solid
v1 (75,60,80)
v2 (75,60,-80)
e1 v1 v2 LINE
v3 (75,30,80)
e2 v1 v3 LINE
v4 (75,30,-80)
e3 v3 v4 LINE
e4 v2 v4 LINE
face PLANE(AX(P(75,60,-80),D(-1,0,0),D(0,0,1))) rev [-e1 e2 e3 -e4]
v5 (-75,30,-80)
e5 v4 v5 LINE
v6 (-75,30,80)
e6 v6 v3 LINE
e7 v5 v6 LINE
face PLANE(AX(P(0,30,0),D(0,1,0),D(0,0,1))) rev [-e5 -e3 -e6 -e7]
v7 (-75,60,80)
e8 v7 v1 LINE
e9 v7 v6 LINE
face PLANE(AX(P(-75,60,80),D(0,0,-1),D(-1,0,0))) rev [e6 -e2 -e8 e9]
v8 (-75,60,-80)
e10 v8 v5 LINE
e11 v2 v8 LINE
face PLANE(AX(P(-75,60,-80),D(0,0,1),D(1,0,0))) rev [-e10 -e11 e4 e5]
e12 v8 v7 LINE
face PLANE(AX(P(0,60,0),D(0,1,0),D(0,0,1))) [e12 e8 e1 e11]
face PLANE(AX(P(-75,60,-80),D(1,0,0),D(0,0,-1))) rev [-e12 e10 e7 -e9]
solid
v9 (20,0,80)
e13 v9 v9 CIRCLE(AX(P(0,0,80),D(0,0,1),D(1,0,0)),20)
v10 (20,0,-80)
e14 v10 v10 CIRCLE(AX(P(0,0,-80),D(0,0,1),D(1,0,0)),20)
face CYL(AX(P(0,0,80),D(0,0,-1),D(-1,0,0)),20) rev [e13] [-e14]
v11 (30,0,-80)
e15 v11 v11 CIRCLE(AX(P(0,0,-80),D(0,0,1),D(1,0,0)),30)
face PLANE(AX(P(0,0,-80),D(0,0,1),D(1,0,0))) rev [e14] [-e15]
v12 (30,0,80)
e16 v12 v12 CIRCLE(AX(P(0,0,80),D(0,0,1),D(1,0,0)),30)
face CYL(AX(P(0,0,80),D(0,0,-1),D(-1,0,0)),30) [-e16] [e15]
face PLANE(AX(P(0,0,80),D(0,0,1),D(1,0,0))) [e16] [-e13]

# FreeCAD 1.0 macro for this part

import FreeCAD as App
import Part
import Sketcher
Q = App.Units.Quantity

doc = App.newDocument("Part")
body = doc.addObject("PartDesign::Body", "Body")

# Sketch on XY plane
sketch1 = body.newObject("Sketcher::SketchObject", "Sketch")
sketch1.AttachmentSupport = (doc.getObject("XY_Plane"), [""])
sketch1.MapMode = "FlatFace"
sketch1.addGeometry([
    Part.Circle(App.Vector(0, 0, 0), App.Vector(0, 0, 1), 30),
    Part.Circle(App.Vector(0, 0, 0), App.Vector(0, 0, 1), 20),
], False)
sketch1.addConstraint([
    Sketcher.Constraint("Coincident", 0, 3, -1, 1),
    Sketcher.Constraint("Coincident", 1, 3, -1, 1),
    Sketcher.Constraint("Diameter", 0, Q("60 mm")),
    Sketcher.Constraint("Diameter", 1, Q("40 mm")),
])
pad1 = body.newObject("PartDesign::Pad", "Pad")
pad1.Profile = sketch1
pad1.Length = 160
pad1.Midplane = True
body2 = doc.addObject("PartDesign::Body", "Body001")

# Sketch on XZ plane
sketch2 = body2.newObject("Sketcher::SketchObject", "Sketch001")
sketch2.AttachmentSupport = (doc.getObject("XZ_Plane001"), [""])
sketch2.MapMode = "FlatFace"
sketch2.AttachmentOffset = App.Placement(App.Vector(0, 0, -30), App.Rotation())
sketch2.addGeometry([
    Part.LineSegment(App.Vector(-75, -80, 0), App.Vector(-75, 80, 0)),
    Part.LineSegment(App.Vector(-75, 80, 0), App.Vector(75, 80, 0)),
    Part.LineSegment(App.Vector(75, 80, 0), App.Vector(75, -80, 0)),
    Part.LineSegment(App.Vector(75, -80, 0), App.Vector(-75, -80, 0)),
], False)
sketch2.addConstraint([
    Sketcher.Constraint("Coincident", 0, 2, 1, 1),
    Sketcher.Constraint("Coincident", 1, 2, 2, 1),
    Sketcher.Constraint("Coincident", 2, 2, 3, 1),
    Sketcher.Constraint("Coincident", 3, 2, 0, 1),
    Sketcher.Constraint("Vertical", 0),
    Sketcher.Constraint("Horizontal", 1),
    Sketcher.Constraint("Vertical", 2),
    Sketcher.Constraint("Horizontal", 3),
    Sketcher.Constraint("Symmetric", 0, 2, 2, 2, -1, 1),
    Sketcher.Constraint("DistanceX", 1, 1, 1, 2, Q("150 mm")),
    Sketcher.Constraint("DistanceY", 0, 1, 0, 2, Q("160 mm")),
])
pad2 = body2.newObject("PartDesign::Pad", "Pad001")
pad2.Profile = sketch2
pad2.Length = 30
pad2.Reversed = True

doc.recompute()
